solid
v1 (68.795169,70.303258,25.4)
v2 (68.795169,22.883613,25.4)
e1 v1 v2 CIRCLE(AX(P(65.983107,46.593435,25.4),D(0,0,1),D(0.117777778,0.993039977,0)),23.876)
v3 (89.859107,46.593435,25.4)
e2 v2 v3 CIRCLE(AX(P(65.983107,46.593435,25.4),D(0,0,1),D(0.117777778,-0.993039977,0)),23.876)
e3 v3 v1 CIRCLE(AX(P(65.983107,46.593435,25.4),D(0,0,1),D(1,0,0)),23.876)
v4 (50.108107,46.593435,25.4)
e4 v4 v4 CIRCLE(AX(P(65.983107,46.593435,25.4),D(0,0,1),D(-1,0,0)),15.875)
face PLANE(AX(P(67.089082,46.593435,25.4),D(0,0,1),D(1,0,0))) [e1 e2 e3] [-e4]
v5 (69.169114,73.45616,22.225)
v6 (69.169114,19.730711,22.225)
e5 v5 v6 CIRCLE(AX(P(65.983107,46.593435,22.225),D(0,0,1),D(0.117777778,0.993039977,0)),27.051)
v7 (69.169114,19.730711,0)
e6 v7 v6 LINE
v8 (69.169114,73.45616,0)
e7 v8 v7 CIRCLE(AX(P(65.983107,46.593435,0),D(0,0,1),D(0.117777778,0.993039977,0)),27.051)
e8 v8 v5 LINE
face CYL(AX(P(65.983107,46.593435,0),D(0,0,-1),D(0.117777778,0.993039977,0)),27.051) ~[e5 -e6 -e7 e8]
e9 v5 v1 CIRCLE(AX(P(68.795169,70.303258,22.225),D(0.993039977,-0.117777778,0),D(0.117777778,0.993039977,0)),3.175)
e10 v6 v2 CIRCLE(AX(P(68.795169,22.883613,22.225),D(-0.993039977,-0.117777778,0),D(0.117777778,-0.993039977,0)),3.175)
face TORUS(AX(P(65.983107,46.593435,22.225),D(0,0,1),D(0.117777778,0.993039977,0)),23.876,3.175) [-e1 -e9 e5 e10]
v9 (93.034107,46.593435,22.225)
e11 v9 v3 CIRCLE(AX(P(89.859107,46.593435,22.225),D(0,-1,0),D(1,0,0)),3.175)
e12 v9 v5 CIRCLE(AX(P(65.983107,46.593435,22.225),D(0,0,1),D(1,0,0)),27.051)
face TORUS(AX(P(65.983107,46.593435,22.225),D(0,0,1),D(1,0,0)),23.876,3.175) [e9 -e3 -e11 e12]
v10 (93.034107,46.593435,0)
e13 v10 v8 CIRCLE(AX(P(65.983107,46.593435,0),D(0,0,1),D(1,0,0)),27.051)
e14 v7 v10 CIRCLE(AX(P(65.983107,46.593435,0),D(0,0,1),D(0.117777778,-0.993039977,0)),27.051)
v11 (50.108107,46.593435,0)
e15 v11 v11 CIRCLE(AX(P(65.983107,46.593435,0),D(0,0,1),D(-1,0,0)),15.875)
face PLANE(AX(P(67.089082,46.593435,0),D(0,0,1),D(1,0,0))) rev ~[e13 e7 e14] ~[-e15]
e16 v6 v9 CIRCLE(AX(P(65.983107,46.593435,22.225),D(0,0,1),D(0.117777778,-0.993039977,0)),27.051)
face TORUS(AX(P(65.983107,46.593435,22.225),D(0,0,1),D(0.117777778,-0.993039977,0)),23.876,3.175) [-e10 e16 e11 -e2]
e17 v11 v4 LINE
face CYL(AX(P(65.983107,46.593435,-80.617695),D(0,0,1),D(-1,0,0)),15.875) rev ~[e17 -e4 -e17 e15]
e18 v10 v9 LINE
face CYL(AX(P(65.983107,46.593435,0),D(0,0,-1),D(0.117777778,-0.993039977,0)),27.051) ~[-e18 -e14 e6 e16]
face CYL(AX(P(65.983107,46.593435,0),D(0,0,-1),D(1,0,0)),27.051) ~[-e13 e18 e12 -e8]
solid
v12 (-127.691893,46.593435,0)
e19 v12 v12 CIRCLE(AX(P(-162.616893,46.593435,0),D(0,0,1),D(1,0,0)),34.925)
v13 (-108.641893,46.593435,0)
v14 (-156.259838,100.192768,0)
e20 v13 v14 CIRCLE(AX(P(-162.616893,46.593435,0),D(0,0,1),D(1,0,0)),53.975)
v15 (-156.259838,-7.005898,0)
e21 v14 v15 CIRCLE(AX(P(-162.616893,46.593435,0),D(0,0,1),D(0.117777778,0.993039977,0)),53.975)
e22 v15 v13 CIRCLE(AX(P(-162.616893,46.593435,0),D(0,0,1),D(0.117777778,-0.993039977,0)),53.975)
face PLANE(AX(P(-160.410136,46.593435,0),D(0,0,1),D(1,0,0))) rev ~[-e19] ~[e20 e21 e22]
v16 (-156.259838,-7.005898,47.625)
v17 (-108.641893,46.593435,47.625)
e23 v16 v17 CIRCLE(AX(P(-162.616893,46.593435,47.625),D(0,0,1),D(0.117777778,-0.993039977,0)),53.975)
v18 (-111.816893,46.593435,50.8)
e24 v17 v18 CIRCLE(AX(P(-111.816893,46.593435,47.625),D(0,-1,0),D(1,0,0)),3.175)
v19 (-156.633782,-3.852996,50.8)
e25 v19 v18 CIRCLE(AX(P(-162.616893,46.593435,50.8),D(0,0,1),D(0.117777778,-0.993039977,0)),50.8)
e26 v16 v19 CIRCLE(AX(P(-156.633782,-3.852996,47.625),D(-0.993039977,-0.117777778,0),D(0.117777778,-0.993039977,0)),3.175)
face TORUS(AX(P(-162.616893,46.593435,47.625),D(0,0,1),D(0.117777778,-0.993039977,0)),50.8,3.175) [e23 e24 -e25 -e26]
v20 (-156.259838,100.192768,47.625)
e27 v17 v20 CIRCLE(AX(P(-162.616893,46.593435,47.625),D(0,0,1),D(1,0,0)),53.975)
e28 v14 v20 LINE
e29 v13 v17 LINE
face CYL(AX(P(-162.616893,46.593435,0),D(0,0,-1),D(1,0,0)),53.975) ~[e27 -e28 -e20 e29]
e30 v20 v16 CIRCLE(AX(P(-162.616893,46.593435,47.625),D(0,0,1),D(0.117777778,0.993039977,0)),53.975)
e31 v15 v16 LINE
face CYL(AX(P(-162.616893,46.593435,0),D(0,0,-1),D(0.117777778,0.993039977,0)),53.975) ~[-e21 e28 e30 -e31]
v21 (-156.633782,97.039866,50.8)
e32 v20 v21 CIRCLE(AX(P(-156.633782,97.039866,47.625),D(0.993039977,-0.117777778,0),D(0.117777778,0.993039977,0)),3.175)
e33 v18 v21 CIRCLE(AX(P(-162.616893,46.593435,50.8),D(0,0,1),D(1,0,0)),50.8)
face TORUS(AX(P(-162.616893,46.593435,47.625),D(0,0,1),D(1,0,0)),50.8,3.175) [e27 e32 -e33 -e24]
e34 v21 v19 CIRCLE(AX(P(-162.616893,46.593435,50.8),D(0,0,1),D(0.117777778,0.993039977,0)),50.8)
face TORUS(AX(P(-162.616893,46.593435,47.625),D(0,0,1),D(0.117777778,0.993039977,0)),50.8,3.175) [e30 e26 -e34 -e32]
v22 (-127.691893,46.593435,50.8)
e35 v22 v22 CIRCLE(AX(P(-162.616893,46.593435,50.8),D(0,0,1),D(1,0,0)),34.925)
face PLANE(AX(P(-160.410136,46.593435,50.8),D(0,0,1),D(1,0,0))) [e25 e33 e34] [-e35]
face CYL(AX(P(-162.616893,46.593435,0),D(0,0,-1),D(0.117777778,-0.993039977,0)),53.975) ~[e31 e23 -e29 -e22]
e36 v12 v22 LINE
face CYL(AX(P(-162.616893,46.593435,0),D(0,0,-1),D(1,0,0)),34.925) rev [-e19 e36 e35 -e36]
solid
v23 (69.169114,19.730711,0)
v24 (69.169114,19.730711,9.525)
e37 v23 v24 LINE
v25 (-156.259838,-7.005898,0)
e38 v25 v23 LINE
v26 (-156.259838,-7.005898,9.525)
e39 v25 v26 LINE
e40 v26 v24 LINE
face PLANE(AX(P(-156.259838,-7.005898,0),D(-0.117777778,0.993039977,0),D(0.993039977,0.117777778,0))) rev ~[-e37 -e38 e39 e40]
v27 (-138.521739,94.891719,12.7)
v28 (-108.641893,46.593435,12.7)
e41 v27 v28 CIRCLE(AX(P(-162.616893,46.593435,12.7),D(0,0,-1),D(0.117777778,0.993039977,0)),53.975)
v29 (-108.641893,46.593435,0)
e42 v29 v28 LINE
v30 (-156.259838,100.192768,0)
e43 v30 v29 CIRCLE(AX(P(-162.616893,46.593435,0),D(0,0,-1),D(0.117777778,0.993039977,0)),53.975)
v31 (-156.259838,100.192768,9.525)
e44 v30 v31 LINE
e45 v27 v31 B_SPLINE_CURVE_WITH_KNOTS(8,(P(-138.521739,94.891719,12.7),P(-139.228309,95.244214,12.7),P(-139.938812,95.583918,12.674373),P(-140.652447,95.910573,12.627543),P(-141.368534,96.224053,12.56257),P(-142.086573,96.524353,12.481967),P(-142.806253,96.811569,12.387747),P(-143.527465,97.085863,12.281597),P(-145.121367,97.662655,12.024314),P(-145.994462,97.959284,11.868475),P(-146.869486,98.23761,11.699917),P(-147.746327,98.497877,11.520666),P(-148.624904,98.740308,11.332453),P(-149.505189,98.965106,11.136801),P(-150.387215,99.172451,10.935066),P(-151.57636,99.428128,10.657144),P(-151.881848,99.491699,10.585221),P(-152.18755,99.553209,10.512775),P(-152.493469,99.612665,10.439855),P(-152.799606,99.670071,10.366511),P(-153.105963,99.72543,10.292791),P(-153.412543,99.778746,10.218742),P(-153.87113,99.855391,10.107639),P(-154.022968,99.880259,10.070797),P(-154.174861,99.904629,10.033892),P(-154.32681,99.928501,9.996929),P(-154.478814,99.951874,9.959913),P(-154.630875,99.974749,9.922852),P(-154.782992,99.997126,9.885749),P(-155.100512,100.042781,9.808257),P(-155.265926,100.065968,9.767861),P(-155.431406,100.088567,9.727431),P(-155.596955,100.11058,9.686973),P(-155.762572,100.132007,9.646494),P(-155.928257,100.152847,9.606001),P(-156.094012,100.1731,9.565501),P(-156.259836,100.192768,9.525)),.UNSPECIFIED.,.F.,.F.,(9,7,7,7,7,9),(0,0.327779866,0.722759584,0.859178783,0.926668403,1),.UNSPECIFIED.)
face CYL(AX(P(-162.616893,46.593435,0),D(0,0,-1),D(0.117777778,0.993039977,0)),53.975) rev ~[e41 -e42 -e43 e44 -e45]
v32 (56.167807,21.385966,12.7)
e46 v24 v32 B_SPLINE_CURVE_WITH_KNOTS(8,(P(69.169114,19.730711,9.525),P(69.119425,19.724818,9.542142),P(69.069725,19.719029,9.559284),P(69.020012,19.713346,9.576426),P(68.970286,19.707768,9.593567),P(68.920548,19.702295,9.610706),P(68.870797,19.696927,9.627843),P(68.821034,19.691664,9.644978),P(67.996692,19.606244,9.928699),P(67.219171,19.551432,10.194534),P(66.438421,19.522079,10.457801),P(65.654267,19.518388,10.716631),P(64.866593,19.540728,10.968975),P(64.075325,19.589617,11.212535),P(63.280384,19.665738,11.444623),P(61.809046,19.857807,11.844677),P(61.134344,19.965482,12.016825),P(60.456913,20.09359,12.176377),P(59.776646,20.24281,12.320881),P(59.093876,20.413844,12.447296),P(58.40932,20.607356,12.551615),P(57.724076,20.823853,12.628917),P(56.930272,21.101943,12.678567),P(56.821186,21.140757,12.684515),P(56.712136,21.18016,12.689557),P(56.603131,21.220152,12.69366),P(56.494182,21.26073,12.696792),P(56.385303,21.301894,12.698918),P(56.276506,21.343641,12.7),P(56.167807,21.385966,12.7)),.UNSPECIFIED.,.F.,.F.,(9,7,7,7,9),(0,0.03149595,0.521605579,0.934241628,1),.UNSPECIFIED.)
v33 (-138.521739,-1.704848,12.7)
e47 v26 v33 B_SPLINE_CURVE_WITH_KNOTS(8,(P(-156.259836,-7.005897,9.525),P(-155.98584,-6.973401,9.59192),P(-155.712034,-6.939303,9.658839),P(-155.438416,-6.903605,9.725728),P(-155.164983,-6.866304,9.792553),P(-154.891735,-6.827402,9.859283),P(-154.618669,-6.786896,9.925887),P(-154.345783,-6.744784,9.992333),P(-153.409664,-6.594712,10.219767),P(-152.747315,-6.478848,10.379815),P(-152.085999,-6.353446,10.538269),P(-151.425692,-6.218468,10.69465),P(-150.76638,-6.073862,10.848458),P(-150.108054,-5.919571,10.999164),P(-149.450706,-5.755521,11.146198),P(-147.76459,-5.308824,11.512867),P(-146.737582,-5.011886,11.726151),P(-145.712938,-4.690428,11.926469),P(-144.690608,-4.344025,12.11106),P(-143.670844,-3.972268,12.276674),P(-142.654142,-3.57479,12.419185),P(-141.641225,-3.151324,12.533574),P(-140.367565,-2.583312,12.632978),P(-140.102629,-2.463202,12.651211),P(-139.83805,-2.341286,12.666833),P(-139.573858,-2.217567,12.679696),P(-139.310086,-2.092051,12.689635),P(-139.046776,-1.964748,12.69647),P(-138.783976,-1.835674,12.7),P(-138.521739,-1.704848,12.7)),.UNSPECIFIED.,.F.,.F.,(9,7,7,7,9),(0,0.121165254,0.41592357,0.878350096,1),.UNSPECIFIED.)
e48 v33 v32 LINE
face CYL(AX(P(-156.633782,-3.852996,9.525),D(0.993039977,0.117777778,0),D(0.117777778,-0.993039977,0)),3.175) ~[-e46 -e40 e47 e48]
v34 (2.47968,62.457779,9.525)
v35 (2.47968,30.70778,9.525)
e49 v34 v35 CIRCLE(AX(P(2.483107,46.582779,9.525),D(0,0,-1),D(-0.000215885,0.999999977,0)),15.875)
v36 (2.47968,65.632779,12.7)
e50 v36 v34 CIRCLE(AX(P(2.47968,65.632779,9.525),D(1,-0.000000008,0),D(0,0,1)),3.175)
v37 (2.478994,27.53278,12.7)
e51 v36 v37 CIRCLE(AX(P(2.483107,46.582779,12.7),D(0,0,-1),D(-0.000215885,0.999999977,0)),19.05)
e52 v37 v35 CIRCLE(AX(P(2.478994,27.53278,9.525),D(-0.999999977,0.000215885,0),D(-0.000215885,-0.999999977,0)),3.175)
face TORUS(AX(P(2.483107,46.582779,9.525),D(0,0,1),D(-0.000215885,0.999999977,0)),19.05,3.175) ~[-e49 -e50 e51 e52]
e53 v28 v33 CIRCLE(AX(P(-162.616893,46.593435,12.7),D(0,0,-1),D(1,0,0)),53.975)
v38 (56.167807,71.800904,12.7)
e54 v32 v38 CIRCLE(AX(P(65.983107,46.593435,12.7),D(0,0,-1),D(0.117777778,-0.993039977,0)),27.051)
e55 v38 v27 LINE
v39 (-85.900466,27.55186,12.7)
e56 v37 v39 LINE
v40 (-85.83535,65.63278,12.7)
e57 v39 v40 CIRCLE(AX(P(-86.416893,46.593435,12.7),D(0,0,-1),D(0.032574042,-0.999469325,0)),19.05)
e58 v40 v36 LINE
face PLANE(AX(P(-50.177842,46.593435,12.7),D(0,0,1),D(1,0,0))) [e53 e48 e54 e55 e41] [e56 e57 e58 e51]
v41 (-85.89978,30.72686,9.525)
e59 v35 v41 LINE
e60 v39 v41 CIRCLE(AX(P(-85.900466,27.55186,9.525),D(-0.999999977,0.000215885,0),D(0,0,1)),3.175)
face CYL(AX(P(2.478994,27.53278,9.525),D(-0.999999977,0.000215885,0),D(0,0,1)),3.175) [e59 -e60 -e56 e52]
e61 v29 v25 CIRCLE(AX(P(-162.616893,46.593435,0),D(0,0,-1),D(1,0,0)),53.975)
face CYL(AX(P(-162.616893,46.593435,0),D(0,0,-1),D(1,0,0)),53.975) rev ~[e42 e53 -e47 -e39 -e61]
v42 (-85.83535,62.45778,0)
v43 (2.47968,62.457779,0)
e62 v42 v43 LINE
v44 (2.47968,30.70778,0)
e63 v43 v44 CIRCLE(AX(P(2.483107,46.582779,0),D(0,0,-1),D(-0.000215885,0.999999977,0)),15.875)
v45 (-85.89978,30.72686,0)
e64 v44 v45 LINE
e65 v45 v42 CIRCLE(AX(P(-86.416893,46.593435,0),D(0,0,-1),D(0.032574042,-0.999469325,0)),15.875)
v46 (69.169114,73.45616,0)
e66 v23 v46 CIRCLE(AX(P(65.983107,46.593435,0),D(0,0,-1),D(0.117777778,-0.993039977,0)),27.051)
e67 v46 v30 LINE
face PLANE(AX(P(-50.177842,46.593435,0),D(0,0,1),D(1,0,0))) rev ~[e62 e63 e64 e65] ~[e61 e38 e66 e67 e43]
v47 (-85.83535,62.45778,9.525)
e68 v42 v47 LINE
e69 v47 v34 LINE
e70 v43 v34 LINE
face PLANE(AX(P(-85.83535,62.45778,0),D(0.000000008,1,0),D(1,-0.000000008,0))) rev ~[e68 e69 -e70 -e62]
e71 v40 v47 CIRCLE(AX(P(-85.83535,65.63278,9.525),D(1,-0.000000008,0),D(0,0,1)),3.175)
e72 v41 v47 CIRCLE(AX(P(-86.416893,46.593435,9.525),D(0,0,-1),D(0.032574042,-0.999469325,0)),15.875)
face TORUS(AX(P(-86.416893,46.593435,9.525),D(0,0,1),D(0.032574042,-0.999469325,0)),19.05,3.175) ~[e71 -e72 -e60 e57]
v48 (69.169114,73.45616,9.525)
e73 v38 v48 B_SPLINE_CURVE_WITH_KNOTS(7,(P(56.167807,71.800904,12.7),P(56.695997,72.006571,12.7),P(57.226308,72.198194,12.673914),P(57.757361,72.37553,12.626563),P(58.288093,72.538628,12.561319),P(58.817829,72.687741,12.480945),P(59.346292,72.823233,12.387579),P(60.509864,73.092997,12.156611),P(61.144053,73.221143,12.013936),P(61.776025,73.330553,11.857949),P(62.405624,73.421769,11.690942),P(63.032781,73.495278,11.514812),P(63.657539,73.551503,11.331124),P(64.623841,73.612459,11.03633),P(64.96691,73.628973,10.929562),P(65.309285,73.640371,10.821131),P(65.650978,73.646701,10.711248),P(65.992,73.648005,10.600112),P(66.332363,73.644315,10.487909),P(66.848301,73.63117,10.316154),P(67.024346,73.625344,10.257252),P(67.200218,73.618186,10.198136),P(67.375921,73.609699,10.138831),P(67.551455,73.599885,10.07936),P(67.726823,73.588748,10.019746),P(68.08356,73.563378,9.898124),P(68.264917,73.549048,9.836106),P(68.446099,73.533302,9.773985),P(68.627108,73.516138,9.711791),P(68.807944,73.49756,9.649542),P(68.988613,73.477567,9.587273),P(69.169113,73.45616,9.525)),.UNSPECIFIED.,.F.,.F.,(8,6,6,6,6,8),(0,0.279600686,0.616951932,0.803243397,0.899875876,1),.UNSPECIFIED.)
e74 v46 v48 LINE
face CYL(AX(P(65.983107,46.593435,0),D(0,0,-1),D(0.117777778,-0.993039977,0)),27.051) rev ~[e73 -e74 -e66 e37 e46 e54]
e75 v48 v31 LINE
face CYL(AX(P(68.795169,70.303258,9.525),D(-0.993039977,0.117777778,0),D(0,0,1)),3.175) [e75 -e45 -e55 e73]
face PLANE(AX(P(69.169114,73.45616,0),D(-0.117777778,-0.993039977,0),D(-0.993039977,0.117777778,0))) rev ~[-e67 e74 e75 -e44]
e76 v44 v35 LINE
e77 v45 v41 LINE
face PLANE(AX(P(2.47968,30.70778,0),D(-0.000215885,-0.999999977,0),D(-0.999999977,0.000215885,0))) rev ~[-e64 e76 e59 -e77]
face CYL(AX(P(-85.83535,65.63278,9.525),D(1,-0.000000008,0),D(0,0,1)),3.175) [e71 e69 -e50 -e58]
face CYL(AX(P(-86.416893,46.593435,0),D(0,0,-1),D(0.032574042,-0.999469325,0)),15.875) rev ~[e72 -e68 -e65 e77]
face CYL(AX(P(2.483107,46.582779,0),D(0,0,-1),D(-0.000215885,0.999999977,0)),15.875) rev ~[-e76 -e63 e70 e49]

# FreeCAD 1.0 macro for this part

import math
import FreeCAD as App
import Part
import Sketcher
from FreeCAD import Vector
Q = App.Units.Quantity


def edges_at(feature, points):
    """Names of the edges that pass closest to the given points."""
    edges = feature.Shape.Edges
    near = lambda p: min(range(len(edges)), key=lambda i: edges[i].distToShape(Part.Vertex(*p))[0])
    return sorted({f"Edge{near(p) + 1}" for p in points})

doc = App.newDocument("Part")
body = doc.addObject("PartDesign::Body", "Body")

# Sketch on XY plane
sketch1 = body.newObject("Sketcher::SketchObject", "Sketch")
sketch1.AttachmentSupport = (doc.getObject("XY_Plane"), [""])
sketch1.MapMode = "FlatFace"
sketch1.addGeometry(Part.ArcOfCircle(Part.Circle(Vector(-163, 47, 0), Vector(0, 0, 1), 54), math.radians(-83), math.radians(0)), False)
sketch1.addGeometry(Part.ArcOfCircle(Part.Circle(Vector(-163, 47, 0), Vector(0, 0, 1), 54), math.radians(0), math.radians(83)), False)
sketch1.addGeometry(Part.ArcOfCircle(Part.Circle(Vector(-163, 47, 0), Vector(0, 0, 1), 54), math.radians(83), math.radians(277)), False)
sketch1.addGeometry(Part.Circle(Vector(-163, 47, 0), Vector(0, 0, 1), 35), False)
sketch1.addConstraint(Sketcher.Constraint("Tangent", 0, 2, 1, 1))
sketch1.addConstraint(Sketcher.Constraint("Tangent", 1, 2, 2, 1))
sketch1.addConstraint(Sketcher.Constraint("Tangent", 2, 2, 0, 1))
sketch1.addConstraint(Sketcher.Constraint("Coincident", 3, 3, 0, 3))
sketch1.addConstraint(Sketcher.Constraint("Horizontal", 3, 3, 0, 2))
sketch1.addConstraint(Sketcher.Constraint("Vertical", 1, 2, 2, 2))
sketch1.addConstraint(Sketcher.Constraint("Diameter", 3, Q("2.75 in")))
sketch1.addConstraint(Sketcher.Constraint("Radius", 0, Q("2.125 in")))
sketch1.addConstraint(Sketcher.Constraint("DistanceX", 0, 3, -1, 1, 162.616893))
sketch1.addConstraint(Sketcher.Constraint("DistanceY", -1, 1, 0, 3, 46.593435))
sketch1.addConstraint(Sketcher.Constraint("DistanceX", 1, 2, -1, 1, 156.259838))
pad1 = body.newObject("PartDesign::Pad", "Pad")
pad1.Profile = sketch1
pad1.Length = Q("2 in")
doc.recompute()

fillet = body.newObject("PartDesign::Fillet", "Fillet")
fillet.Base = (pad1, edges_at(pad1, [(-216.592, 46.593, 50.8)]))
fillet.Radius = Q("0.125 in")
body2 = doc.addObject("PartDesign::Body", "Body001")

# Sketch on XY plane
sketch2 = body2.newObject("Sketcher::SketchObject", "Sketch001")
sketch2.AttachmentSupport = (doc.getObject("XY_Plane001"), [""])
sketch2.MapMode = "FlatFace"
sketch2.addGeometry(Part.ArcOfCircle(Part.Circle(Vector(66, 47, 0), Vector(0, 0, 1), 27), math.radians(0), math.radians(83)), False)
sketch2.addGeometry(Part.ArcOfCircle(Part.Circle(Vector(66, 47, 0), Vector(0, 0, 1), 27), math.radians(83), math.radians(277)), False)
sketch2.addGeometry(Part.ArcOfCircle(Part.Circle(Vector(66, 47, 0), Vector(0, 0, 1), 27), math.radians(-83), math.radians(0)), False)
sketch2.addGeometry(Part.Circle(Vector(66, 47, 0), Vector(0, 0, 1), 13), False)
sketch2.addConstraint(Sketcher.Constraint("Tangent", 0, 2, 1, 1))
sketch2.addConstraint(Sketcher.Constraint("Tangent", 1, 2, 2, 1))
sketch2.addConstraint(Sketcher.Constraint("Tangent", 2, 2, 0, 1))
sketch2.addConstraint(Sketcher.Constraint("Coincident", 3, 3, 0, 3))
sketch2.addConstraint(Sketcher.Constraint("Horizontal", 3, 3, 2, 2))
sketch2.addConstraint(Sketcher.Constraint("Vertical", 0, 2, 1, 2))
sketch2.addConstraint(Sketcher.Constraint("Diameter", 3, Q("1 in")))
sketch2.addConstraint(Sketcher.Constraint("Radius", 0, Q("1.065 in")))
sketch2.addConstraint(Sketcher.Constraint("DistanceY", -1, 1, 0, 2, 73.45616))
sketch2.addConstraint(Sketcher.Constraint("DistanceY", -1, 1, 1, 2, 19.730711))
sketch2.addConstraint(Sketcher.Constraint("DistanceX", -1, 1, 0, 3, 65.983107))
pad2 = body2.newObject("PartDesign::Pad", "Pad001")
pad2.Profile = sketch2
pad2.Length = Q("1 in")
doc.recompute()

fillet2 = body2.newObject("PartDesign::Fillet", "Fillet001")
fillet2.Base = (pad2, edges_at(pad2, [(38.932, 46.593, 25.4)]))
fillet2.Radius = Q("0.125 in")

# Sketch on XY plane
sketch3 = body2.newObject("Sketcher::SketchObject", "Sketch002")
sketch3.AttachmentSupport = (doc.getObject("XY_Plane001"), [""])
sketch3.MapMode = "FlatFace"
sketch3.addGeometry(Part.Circle(Vector(-163, 47, 0), Vector(0, 0, 1), 16), False)
sketch3.addGeometry(Part.Circle(Vector(66, 47, 0), Vector(0, 0, 1), 16), False)
sketch3.addConstraint(Sketcher.Constraint("Equal", 0, 1))
sketch3.addConstraint(Sketcher.Constraint("Horizontal", 0, 3, 1, 3))
sketch3.addConstraint(Sketcher.Constraint("Diameter", 0, Q("1.25 in")))
sketch3.addConstraint(Sketcher.Constraint("DistanceX", 0, 3, 1, 3, Q("9 in")))
sketch3.addConstraint(Sketcher.Constraint("DistanceX", 0, 3, -1, 1, 162.616893))
sketch3.addConstraint(Sketcher.Constraint("DistanceY", -1, 1, 0, 3, 46.593435))
doc.recompute()
hole = body2.newObject("PartDesign::Hole", "Hole")
hole.Profile = sketch3
hole.ThreadType = "None"
hole.Diameter = Q("1.25 in")
hole.DepthType = "ThroughAll"
hole.Reversed = True
body3 = doc.addObject("PartDesign::Body", "Body002")

# Sketch on XY plane
sketch4 = body3.newObject("Sketcher::SketchObject", "Sketch003")
sketch4.AttachmentSupport = (doc.getObject("XY_Plane002"), [""])
sketch4.MapMode = "FlatFace"
sketch4.addGeometry(Part.ArcOfCircle(Part.Circle(Vector(-163, 47, 0), Vector(0, 0, 1), 54), math.radians(0), math.radians(83)), False)
sketch4.addGeometry(Part.ArcOfCircle(Part.Circle(Vector(-163, 47, 0), Vector(0, 0, 1), 54), math.radians(-83), math.radians(0)), False)
sketch4.addGeometry(Part.LineSegment(Vector(-156, -7, 0), Vector(69, 20, 0)), False)
sketch4.addGeometry(Part.ArcOfCircle(Part.Circle(Vector(66, 47, 0), Vector(0, 0, 1), 27), math.radians(83), math.radians(277)), False)
sketch4.addGeometry(Part.LineSegment(Vector(69, 73, 0), Vector(-156, 100, 0)), False)
sketch4.addGeometry(Part.LineSegment(Vector(2, 31, 0), Vector(-86, 31, 0)), False)
sketch4.addGeometry(Part.ArcOfCircle(Part.Circle(Vector(-86, 47, 0), Vector(0, 0, 1), 16), math.radians(88), math.radians(272)), False)
sketch4.addGeometry(Part.LineSegment(Vector(-86, 62, 0), Vector(2, 62, 0)), False)
sketch4.addGeometry(Part.ArcOfCircle(Part.Circle(Vector(2, 47, 0), Vector(0, 0, 1), 16), math.radians(-90), math.radians(90)), False)
sketch4.addConstraint(Sketcher.Constraint("Tangent", 0, 1, 1, 2))
sketch4.addConstraint(Sketcher.Constraint("Tangent", 1, 1, 2, 1))
sketch4.addConstraint(Sketcher.Constraint("Tangent", 2, 2, 3, 2))
sketch4.addConstraint(Sketcher.Constraint("Tangent", 3, 1, 4, 1))
sketch4.addConstraint(Sketcher.Constraint("Tangent", 4, 2, 0, 2))
sketch4.addConstraint(Sketcher.Constraint("Coincident", 5, 2, 6, 2))
sketch4.addConstraint(Sketcher.Constraint("Coincident", 6, 1, 7, 1))
sketch4.addConstraint(Sketcher.Constraint("Coincident", 7, 2, 8, 2))
sketch4.addConstraint(Sketcher.Constraint("Tangent", 8, 1, 5, 1))
sketch4.addConstraint(Sketcher.Constraint("Horizontal", 7))
sketch4.addConstraint(Sketcher.Constraint("Equal", 0, 1))
sketch4.addConstraint(Sketcher.Constraint("Equal", 6, 8))
sketch4.addConstraint(Sketcher.Constraint("Horizontal", 1, 3, 3, 3))
sketch4.addConstraint(Sketcher.Constraint("Horizontal", 3, 3, 6, 3))
sketch4.addConstraint(Sketcher.Constraint("Horizontal", 6, 3, 0, 1))
sketch4.addConstraint(Sketcher.Constraint("Vertical", 7, 2, 8, 1))
sketch4.addConstraint(Sketcher.Constraint("Radius", 0, Q("2.125 in")))
sketch4.addConstraint(Sketcher.Constraint("Radius", 3, Q("1.065 in")))
sketch4.addConstraint(Sketcher.Constraint("Radius", 6, Q("0.625 in")))
sketch4.addConstraint(Sketcher.Constraint("DistanceX", 0, 3, 3, 3, Q("9 in")))
sketch4.addConstraint(Sketcher.Constraint("DistanceX", 0, 3, 6, 3, Q("3 in")))
sketch4.addConstraint(Sketcher.Constraint("DistanceX", 8, 3, 3, 3, Q("2.5 in")))
sketch4.addConstraint(Sketcher.Constraint("DistanceX", 7, 1, 7, 2, 88.315029))
sketch4.addConstraint(Sketcher.Constraint("Distance", 5, 88.379462))
sketch4.addConstraint(Sketcher.Constraint("DistanceY", -1, 1, 8, 3, 46.582779))
sketch4.addConstraint(Sketcher.Constraint("DistanceX", 5, 2, -1, 1, 85.89978))
pad3 = body3.newObject("PartDesign::Pad", "Pad002")
pad3.Profile = sketch4
pad3.Length = Q("0.5 in")
doc.recompute()

fillet3 = body3.newObject("PartDesign::Fillet", "Fillet002")
fillet3.Base = (pad3, edges_at(pad3, [(-43.545, 6.362, 12.7)]))
fillet3.Radius = Q("0.125 in")
doc.recompute()

fillet4 = body3.newObject("PartDesign::Fillet", "Fillet003")
fillet4.Base = (fillet3, edges_at(fillet3, [(-43.545, 86.824, 12.7)]))
fillet4.Radius = Q("0.125 in")
doc.recompute()

fillet5 = body3.newObject("PartDesign::Fillet", "Fillet004")
fillet5.Base = (fillet4, edges_at(fillet4, [
    (-41.678, 62.458, 12.7),
    (-41.71, 30.717, 12.7),
    (-102.292, 46.626, 12.7),
    (18.358, 46.583, 12.7),
]))
fillet5.Radius = Q("0.125 in")

doc.recompute()
